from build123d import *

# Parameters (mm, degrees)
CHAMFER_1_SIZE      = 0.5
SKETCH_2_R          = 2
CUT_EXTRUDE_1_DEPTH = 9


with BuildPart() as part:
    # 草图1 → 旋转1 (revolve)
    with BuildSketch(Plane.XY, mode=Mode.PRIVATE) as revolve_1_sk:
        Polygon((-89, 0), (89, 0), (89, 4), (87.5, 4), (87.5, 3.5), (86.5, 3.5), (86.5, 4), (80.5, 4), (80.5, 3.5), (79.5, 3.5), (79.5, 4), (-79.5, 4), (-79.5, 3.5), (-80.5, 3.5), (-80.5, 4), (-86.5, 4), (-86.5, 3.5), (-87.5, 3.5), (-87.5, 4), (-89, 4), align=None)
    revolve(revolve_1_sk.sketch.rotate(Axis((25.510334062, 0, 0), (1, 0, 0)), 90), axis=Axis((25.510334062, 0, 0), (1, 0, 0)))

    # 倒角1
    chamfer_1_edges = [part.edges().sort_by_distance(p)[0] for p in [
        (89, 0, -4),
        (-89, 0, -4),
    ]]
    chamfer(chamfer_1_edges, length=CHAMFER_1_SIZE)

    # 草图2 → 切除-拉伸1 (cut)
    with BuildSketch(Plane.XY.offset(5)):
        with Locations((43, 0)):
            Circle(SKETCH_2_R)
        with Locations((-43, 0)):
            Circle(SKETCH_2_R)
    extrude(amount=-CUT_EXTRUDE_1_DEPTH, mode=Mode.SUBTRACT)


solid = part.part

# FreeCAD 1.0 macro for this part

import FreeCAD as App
import Part
import Sketcher


def edges_at(feature, points):
    """Names of the edges that pass closest to the given points."""
    edges = feature.Shape.Edges
    near = lambda p: min(range(len(edges)), key=lambda i: edges[i].distToShape(Part.Vertex(*p))[0])
    return sorted({f"Edge{near(p) + 1}" for p in points})


def add_polygon(sketch, points):
    """Adds a closed chain of lines whose ends are joined by coincident constraints."""
    first, n = sketch.GeometryCount, len(points)
    for a, b in zip(points, points[1:] + points[:1]):
        sketch.addGeometry(Part.LineSegment(App.Vector(*a, 0), App.Vector(*b, 0)), False)
    for i in range(n):
        sketch.addConstraint(Sketcher.Constraint("Coincident", first + i, 2, first + (i + 1) % n, 1))

doc = App.newDocument("Part")
params = doc.addObject("Spreadsheet::Sheet", "Params")
for row, (alias, value) in enumerate([
    ("sketch1_width", "178 mm"),
    ("sketch1_width2", "1 mm"),
    ("sketch1_width3", "6 mm"),
    ("sketch1_width4", "159 mm"),
    ("sketch1_height", "4 mm"),
    ("revolution_angle", "360 deg"),
    ("chamfer_size", "0.5 mm"),
    ("sketch2_diameter", "4 mm"),
    ("pocket1_length", "9 mm"),
], start=1):
    params.set(f"A{row}", alias)
    params.set(f"B{row}", "=" + value)
    params.setAlias(f"B{row}", alias)

body = doc.addObject("PartDesign::Body", "Body")

# Sketch on XY plane
sketch1 = body.newObject("Sketcher::SketchObject", "Sketch")
sketch1.AttachmentSupport = (doc.getObject("XY_Plane"), [""])
sketch1.MapMode = "FlatFace"
add_polygon(sketch1, [(-89, 0), (89, 0), (89, 4), (87.5, 4), (87.5, 3.5), (86.5, 3.5), (86.5, 4), (80.5, 4), (80.5, 3.5), (79.5, 3.5), (79.5, 4), (-79.5, 4), (-79.5, 3.5), (-80.5, 3.5), (-80.5, 4), (-86.5, 4), (-86.5, 3.5), (-87.5, 3.5), (-87.5, 4), (-89, 4)])  # lines 0-19
sketch1.addConstraint([
    Sketcher.Constraint("Horizontal", 0),
    Sketcher.Constraint("Vertical", 1),
    Sketcher.Constraint("Horizontal", 2),
    Sketcher.Constraint("Vertical", 3),
    Sketcher.Constraint("Horizontal", 4),
    Sketcher.Constraint("Vertical", 5),
    Sketcher.Constraint("Horizontal", 6),
    Sketcher.Constraint("Vertical", 7),
    Sketcher.Constraint("Horizontal", 8),
    Sketcher.Constraint("Vertical", 9),
    Sketcher.Constraint("Horizontal", 10),
    Sketcher.Constraint("Vertical", 11),
    Sketcher.Constraint("Horizontal", 12),
    Sketcher.Constraint("Vertical", 13),
    Sketcher.Constraint("Horizontal", 14),
    Sketcher.Constraint("Vertical", 15),
    Sketcher.Constraint("Horizontal", 16),
    Sketcher.Constraint("Vertical", 17),
    Sketcher.Constraint("Horizontal", 18),
    Sketcher.Constraint("Vertical", 19),
    Sketcher.Constraint("Symmetric", 0, 2, 19, 2, -1, 1),
    Sketcher.Constraint("Symmetric", 8, 2, 11, 2, -2),
    Sketcher.Constraint("Symmetric", 6, 2, 13, 2, -2),
    Sketcher.Constraint("Symmetric", 4, 2, 15, 2, -2),
    Sketcher.Constraint("Symmetric", 2, 2, 17, 2, -2),
    Sketcher.Constraint("Horizontal", 2, 2, 5, 2),
    Sketcher.Constraint("Horizontal", 4, 2, 7, 2),
    Sketcher.Constraint("Horizontal", 6, 2, 9, 2),
    Sketcher.Constraint("Equal", 4, 8),
    Sketcher.Constraint("DistanceX", 0, 1, 0, 2, 178.0),
    Sketcher.Constraint("DistanceX", 4, 2, 4, 1, 1.0),
    Sketcher.Constraint("DistanceX", 6, 2, 6, 1, 6.0),
    Sketcher.Constraint("DistanceX", 10, 2, 10, 1, 159.0),
    Sketcher.Constraint("DistanceY", 1, 1, 1, 2, 4.0),
    Sketcher.Constraint("DistanceY", 3, 2, 3, 1, 0.5),
])
sketch1.setExpression("Constraints[49]", "Params.sketch1_width")
sketch1.setExpression("Constraints[50]", "Params.sketch1_width2")
sketch1.setExpression("Constraints[51]", "Params.sketch1_width3")
sketch1.setExpression("Constraints[52]", "Params.sketch1_width4")
sketch1.setExpression("Constraints[53]", "Params.sketch1_height")
revolution = body.newObject("PartDesign::Revolution", "Revolution")
revolution.Profile = sketch1
revolution.ReferenceAxis = (sketch1, ["H_Axis"])
revolution.setExpression("Angle", "Params.revolution_angle")
doc.recompute()

chamfer = body.newObject("PartDesign::Chamfer", "Chamfer")
chamfer.Base = (revolution, edges_at(revolution, [(89, 0, -4), (-89, 0, -4)]))
chamfer.setExpression("Size", "Params.chamfer_size")

# Sketch on XY plane
sketch2 = body.newObject("Sketcher::SketchObject", "Sketch001")
sketch2.AttachmentSupport = (doc.getObject("XY_Plane"), [""])
sketch2.MapMode = "FlatFace"
sketch2.AttachmentOffset = App.Placement(App.Vector(0, 0, 5), App.Rotation())
sketch2.addGeometry([
    Part.Circle(App.Vector(43, 0, 0), App.Vector(0, 0, 1), 2),
    Part.Circle(App.Vector(-43, 0, 0), App.Vector(0, 0, 1), 2),
], False)
sketch2.addConstraint([
    Sketcher.Constraint("Equal", 0, 1),
    Sketcher.Constraint("Symmetric", 0, 3, 1, 3, -1, 1),
    Sketcher.Constraint("PointOnObject", 0, 3, -1),
    Sketcher.Constraint("Diameter", 0, 4.0),
    Sketcher.Constraint("DistanceX", -1, 1, 0, 3, 43.0),
])
sketch2.setExpression("Constraints[3]", "Params.sketch2_diameter")
pocket1 = body.newObject("PartDesign::Pocket", "Pocket")
pocket1.Profile = sketch2
pocket1.setExpression("Length", "Params.pocket1_length")

doc.recompute()
